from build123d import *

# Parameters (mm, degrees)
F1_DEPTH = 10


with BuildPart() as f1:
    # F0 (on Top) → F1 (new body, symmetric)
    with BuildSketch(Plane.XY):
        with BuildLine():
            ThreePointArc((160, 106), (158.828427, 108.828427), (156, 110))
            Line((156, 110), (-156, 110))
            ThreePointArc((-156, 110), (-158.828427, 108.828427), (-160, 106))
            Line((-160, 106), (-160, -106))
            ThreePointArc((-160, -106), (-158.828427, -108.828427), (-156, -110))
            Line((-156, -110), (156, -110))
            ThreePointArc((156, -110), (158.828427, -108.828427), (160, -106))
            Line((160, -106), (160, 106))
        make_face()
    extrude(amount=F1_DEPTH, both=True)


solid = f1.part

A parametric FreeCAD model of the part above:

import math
import FreeCAD as App
import Part
import Sketcher

V = App.Vector
Q = App.Units.Quantity

doc = App.newDocument("Part")
body = doc.addObject("PartDesign::Body", "Body")

# Sketch on XY plane
sketch1 = doc.addObject("Sketcher::SketchObject", "Sketch")
body.addObject(sketch1)
sketch1.AttachmentSupport = (doc.XY_Plane, [""])
sketch1.MapMode = "FlatFace"
sketch1.addGeometry(Part.ArcOfCircle(Part.Circle(V(156, 106, 0), V(0, 0, 1), 4), math.radians(0.000006), math.radians(89.999994)), False)
sketch1.addGeometry(Part.LineSegment(V(156, 110, 0), V(-156, 110, 0)), False)
sketch1.addGeometry(Part.ArcOfCircle(Part.Circle(V(-156, 106, 0), V(0, 0, 1), 4), math.radians(90.000006), math.radians(179.999994)), False)
sketch1.addGeometry(Part.LineSegment(V(-160, 106, 0), V(-160, -106, 0)), False)
sketch1.addGeometry(Part.ArcOfCircle(Part.Circle(V(-156, -106, 0), V(0, 0, 1), 4), math.radians(-179.999994), math.radians(-90.000006)), False)
sketch1.addGeometry(Part.LineSegment(V(-156, -110, 0), V(156, -110, 0)), False)
sketch1.addGeometry(Part.ArcOfCircle(Part.Circle(V(156, -106, 0), V(0, 0, 1), 4), math.radians(-89.999994), math.radians(-0.000006)), False)
sketch1.addGeometry(Part.LineSegment(V(160, -106, 0), V(160, 106, 0)), False)
sketch1.addConstraint(Sketcher.Constraint("Tangent", 0, 2, 1, 1))
sketch1.addConstraint(Sketcher.Constraint("Tangent", 1, 2, 2, 1))
sketch1.addConstraint(Sketcher.Constraint("Tangent", 2, 2, 3, 1))
sketch1.addConstraint(Sketcher.Constraint("Tangent", 3, 2, 4, 1))
sketch1.addConstraint(Sketcher.Constraint("Tangent", 4, 2, 5, 1))
sketch1.addConstraint(Sketcher.Constraint("Tangent", 5, 2, 6, 1))
sketch1.addConstraint(Sketcher.Constraint("Tangent", 6, 2, 7, 1))
sketch1.addConstraint(Sketcher.Constraint("Tangent", 7, 2, 0, 1))
sketch1.addConstraint(Sketcher.Constraint("Horizontal", 1))
sketch1.addConstraint(Sketcher.Constraint("Vertical", 3))
sketch1.addConstraint(Sketcher.Constraint("Horizontal", 5))
sketch1.addConstraint(Sketcher.Constraint("Vertical", 7))
sketch1.addConstraint(Sketcher.Constraint("Equal", 0, 2))
sketch1.addConstraint(Sketcher.Constraint("Equal", 2, 4))
sketch1.addConstraint(Sketcher.Constraint("Equal", 4, 6))
sketch1.addConstraint(Sketcher.Constraint("Symmetric", 0, 3, 4, 3, -1, 1))
sketch1.addConstraint(Sketcher.Constraint("Radius", 0, Q("4 mm")))
sketch1.addConstraint(Sketcher.Constraint("DistanceX", 1, 2, 1, 1, Q("312 mm")))
sketch1.addConstraint(Sketcher.Constraint("DistanceY", 3, 2, 3, 1, Q("212 mm")))
pad1 = doc.addObject("PartDesign::Pad", "Pad")
body.addObject(pad1)
pad1.Profile = sketch1
pad1.Length = 20
pad1.Midplane = True

doc.recompute()
